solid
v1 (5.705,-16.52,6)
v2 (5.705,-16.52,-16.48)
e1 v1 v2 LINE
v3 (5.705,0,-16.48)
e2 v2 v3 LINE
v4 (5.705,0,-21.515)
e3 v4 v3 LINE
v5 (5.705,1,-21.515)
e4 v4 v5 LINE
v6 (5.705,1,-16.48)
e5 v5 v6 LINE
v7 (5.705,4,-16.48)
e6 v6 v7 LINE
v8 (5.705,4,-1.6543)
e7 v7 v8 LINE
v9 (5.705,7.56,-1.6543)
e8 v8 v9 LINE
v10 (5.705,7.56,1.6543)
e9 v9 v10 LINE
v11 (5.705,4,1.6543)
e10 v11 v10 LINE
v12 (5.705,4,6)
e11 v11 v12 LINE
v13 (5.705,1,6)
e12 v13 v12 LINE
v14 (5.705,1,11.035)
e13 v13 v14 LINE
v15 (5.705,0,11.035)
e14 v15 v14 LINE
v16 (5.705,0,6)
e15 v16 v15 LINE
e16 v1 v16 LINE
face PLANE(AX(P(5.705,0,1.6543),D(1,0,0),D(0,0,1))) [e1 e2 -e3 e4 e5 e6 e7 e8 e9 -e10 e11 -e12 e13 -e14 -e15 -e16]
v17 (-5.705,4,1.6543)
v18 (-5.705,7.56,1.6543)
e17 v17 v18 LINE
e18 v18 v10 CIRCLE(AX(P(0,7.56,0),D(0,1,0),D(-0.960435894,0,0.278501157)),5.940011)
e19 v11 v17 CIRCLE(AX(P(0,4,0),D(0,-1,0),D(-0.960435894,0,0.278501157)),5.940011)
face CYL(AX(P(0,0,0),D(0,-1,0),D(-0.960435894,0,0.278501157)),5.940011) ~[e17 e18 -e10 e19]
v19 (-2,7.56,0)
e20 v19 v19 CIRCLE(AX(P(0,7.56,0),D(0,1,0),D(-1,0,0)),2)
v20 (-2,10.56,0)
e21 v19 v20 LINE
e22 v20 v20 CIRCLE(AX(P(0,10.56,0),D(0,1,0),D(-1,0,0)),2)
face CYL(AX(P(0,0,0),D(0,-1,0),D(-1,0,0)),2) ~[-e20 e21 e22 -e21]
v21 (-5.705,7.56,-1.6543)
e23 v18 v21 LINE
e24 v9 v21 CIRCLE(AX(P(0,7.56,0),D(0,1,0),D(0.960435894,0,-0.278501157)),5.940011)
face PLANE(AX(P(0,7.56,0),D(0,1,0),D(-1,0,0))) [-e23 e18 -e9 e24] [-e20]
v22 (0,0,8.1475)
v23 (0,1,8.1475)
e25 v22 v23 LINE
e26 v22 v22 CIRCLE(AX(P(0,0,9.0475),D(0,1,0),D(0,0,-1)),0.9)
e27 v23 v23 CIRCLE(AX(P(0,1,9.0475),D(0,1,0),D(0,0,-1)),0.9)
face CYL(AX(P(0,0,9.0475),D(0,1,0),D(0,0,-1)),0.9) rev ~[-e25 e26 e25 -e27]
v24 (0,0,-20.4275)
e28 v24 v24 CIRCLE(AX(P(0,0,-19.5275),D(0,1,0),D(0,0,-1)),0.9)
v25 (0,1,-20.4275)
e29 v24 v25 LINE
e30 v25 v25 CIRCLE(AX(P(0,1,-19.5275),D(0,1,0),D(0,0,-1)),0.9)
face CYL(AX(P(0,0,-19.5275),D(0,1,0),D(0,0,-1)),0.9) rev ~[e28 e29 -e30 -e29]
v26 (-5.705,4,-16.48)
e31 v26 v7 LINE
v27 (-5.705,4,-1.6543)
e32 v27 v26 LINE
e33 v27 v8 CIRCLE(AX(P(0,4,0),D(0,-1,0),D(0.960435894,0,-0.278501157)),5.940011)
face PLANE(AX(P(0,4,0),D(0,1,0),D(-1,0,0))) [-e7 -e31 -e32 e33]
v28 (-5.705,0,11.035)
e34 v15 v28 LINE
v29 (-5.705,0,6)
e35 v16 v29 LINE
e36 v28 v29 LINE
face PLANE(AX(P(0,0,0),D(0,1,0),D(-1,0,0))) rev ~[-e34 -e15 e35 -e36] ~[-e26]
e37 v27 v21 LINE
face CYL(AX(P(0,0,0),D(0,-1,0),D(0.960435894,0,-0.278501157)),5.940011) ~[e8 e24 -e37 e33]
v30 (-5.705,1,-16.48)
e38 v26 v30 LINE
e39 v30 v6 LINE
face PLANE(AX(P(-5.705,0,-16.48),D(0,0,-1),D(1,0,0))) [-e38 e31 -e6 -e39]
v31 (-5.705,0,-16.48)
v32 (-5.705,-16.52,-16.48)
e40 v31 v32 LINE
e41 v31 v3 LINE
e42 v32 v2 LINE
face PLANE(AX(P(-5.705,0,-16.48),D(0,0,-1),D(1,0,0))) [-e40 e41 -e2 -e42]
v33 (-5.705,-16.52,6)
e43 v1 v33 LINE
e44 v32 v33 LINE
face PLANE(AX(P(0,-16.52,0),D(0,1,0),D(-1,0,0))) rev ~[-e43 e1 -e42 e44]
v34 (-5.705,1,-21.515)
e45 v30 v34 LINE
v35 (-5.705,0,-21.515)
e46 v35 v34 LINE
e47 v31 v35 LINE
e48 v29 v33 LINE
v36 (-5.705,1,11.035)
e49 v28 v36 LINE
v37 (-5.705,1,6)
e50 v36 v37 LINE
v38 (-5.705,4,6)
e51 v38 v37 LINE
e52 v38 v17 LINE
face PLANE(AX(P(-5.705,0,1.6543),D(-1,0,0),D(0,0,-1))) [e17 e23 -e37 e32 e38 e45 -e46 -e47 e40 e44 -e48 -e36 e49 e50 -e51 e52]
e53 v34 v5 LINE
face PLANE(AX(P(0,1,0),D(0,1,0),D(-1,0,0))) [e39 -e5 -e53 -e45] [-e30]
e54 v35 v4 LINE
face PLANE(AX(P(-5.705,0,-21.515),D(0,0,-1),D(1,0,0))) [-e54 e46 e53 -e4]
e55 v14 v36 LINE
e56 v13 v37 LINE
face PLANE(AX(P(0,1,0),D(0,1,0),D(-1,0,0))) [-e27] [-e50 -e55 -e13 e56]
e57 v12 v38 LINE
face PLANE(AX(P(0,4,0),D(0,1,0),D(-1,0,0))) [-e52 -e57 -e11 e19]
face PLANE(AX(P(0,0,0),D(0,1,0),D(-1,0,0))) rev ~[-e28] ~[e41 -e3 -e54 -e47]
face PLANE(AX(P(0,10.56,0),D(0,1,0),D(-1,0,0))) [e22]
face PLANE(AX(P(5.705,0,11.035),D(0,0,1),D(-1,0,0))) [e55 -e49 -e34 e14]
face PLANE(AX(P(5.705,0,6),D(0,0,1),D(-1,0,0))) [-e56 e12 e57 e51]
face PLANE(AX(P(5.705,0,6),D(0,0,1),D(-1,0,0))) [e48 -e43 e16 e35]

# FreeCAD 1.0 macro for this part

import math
import FreeCAD as App
import Part
import Sketcher
Q = App.Units.Quantity


def add_polygon(sketch, points):
    """Adds a closed chain of lines whose ends are joined by coincident constraints."""
    first, n = sketch.GeometryCount, len(points)
    for a, b in zip(points, points[1:] + points[:1]):
        sketch.addGeometry(Part.LineSegment(App.Vector(*a, 0), App.Vector(*b, 0)), False)
    for i in range(n):
        sketch.addConstraint(Sketcher.Constraint("Coincident", first + i, 2, first + (i + 1) % n, 1))

doc = App.newDocument("Part")
body = doc.addObject("PartDesign::Body", "Body")

# Sketch on XZ plane
sketch1 = body.newObject("Sketcher::SketchObject", "Sketch")
sketch1.AttachmentSupport = (doc.getObject("XZ_Plane"), [""])
sketch1.MapMode = "FlatFace"
add_polygon(sketch1, [(-5.705, 6), (5.705, 6), (5.705, -16.48), (-5.705, -16.48)])  # lines 0-3
sketch1.addConstraint([
    Sketcher.Constraint("Horizontal", 0),
    Sketcher.Constraint("Vertical", 1),
    Sketcher.Constraint("Horizontal", 2),
    Sketcher.Constraint("Vertical", 3),
    Sketcher.Constraint("DistanceY", -1, 1, 0, 2, Q("6 mm")),
    Sketcher.Constraint("DistanceX", 0, 1, 0, 2, Q("11.41 mm")),
    Sketcher.Constraint("DistanceY", 1, 2, 1, 1, Q("22.48 mm")),
    Sketcher.Constraint("DistanceX", -1, 1, 0, 2, Q("5.705 mm")),
])
pad1 = body.newObject("PartDesign::Pad", "Pad")
pad1.Profile = sketch1
pad1.Type = "TwoLengths"
pad1.Length = 4
pad1.Length2 = 16.52
pad1.Reversed = True

# Sketch on XZ plane
sketch2 = body.newObject("Sketcher::SketchObject", "Sketch001")
sketch2.AttachmentSupport = (doc.getObject("XZ_Plane"), [""])
sketch2.MapMode = "FlatFace"
add_polygon(sketch2, [(5.705, 11.035), (5.705, 6), (-5.705, 6), (-5.705, 11.035)])  # lines 0-3
add_polygon(sketch2, [(-5.705, -16.48), (5.705, -16.48), (5.705, -21.515), (-5.705, -21.515)])  # lines 4-7
sketch2.addConstraint([
    Sketcher.Constraint("Vertical", 0),
    Sketcher.Constraint("Horizontal", 1),
    Sketcher.Constraint("Vertical", 2),
    Sketcher.Constraint("Horizontal", 3),
    Sketcher.Constraint("Horizontal", 4),
    Sketcher.Constraint("Vertical", 5),
    Sketcher.Constraint("Horizontal", 6),
    Sketcher.Constraint("Vertical", 7),
    Sketcher.Constraint("Vertical", 3, 2, 4, 2),
    Sketcher.Constraint("Vertical", 2, 2, 6, 2),
    Sketcher.Constraint("Equal", 2, 5),
    Sketcher.Constraint("DistanceY", -1, 1, 0, 2, Q("6 mm")),
    Sketcher.Constraint("DistanceX", 1, 2, 1, 1, Q("11.41 mm")),
    Sketcher.Constraint("DistanceY", 4, 2, 0, 2, Q("22.48 mm")),
    Sketcher.Constraint("DistanceY", 5, 2, 3, 2, Q("32.55 mm")),
    Sketcher.Constraint("DistanceX", -1, 1, 0, 2, Q("5.705 mm")),
])
pad2 = body.newObject("PartDesign::Pad", "Pad001")
pad2.Profile = sketch2
pad2.Length = 1
pad2.Reversed = True

# Sketch on XZ plane
sketch3 = body.newObject("Sketcher::SketchObject", "Sketch002")
sketch3.AttachmentSupport = (doc.getObject("XZ_Plane"), [""])
sketch3.MapMode = "FlatFace"
sketch3.addGeometry([
    Part.ArcOfCircle(Part.Circle(App.Vector(0, 0, 0), App.Vector(0, 0, 1), 5.940011), math.radians(16.170769), math.radians(163.829231)),  # 0
    Part.LineSegment(App.Vector(5.705, 1.6543, 0), App.Vector(5.705, -1.6543, 0)),  # 1
    Part.ArcOfCircle(Part.Circle(App.Vector(0, 0, 0), App.Vector(0, 0, 1), 5.940011), math.radians(-163.829231), math.radians(-16.170769)),  # 2
    Part.LineSegment(App.Vector(-5.705, -1.6543, 0), App.Vector(-5.705, 1.6543, 0)),  # 3
    Part.Circle(App.Vector(0, 0, 0), App.Vector(0, 0, 1), 2),  # 4
], False)
sketch3.addConstraint([
    Sketcher.Constraint("Coincident", 0, 1, 1, 1),
    Sketcher.Constraint("Coincident", 1, 2, 2, 2),
    Sketcher.Constraint("Coincident", 2, 1, 3, 1),
    Sketcher.Constraint("Coincident", 3, 2, 0, 2),
    Sketcher.Constraint("Vertical", 1),
    Sketcher.Constraint("Vertical", 3),
    Sketcher.Constraint("Coincident", 0, 3, -1, 1),
    Sketcher.Constraint("Coincident", 2, 3, -1, 1),
    Sketcher.Constraint("Coincident", 4, 3, -1, 1),
    Sketcher.Constraint("Equal", 0, 2),
    Sketcher.Constraint("Horizontal", 1, 2, 2, 1),
    Sketcher.Constraint("Diameter", 4, Q("4 mm")),
    Sketcher.Constraint("Radius", 0, Q("5.94 mm")),
    Sketcher.Constraint("DistanceX", 2, 1, 1, 2, Q("11.41 mm")),
])
pad3 = body.newObject("PartDesign::Pad", "Pad002")
pad3.Profile = sketch3
pad3.Length = 7.56
pad3.Reversed = True

# Sketch on XZ plane
sketch4 = body.newObject("Sketcher::SketchObject", "Sketch003")
sketch4.AttachmentSupport = (doc.getObject("XZ_Plane"), [""])
sketch4.MapMode = "FlatFace"
sketch4.addGeometry(Part.Circle(App.Vector(0, 0, 0), App.Vector(0, 0, 1), 2), False)
sketch4.addConstraint([
    Sketcher.Constraint("Coincident", 0, 3, -1, 1),
    Sketcher.Constraint("Diameter", 0, Q("4 mm")),
])
pad4 = body.newObject("PartDesign::Pad", "Pad003")
pad4.Profile = sketch4
pad4.Length = 10.56
pad4.Reversed = True

# Sketch on XZ plane
sketch5 = body.newObject("Sketcher::SketchObject", "Sketch004")
sketch5.AttachmentSupport = (doc.getObject("XZ_Plane"), [""])
sketch5.MapMode = "FlatFace"
sketch5.addGeometry([
    Part.Circle(App.Vector(0, 9.0475, 0), App.Vector(0, 0, 1), 0.9),
    Part.Circle(App.Vector(0, -19.5275, 0), App.Vector(0, 0, 1), 0.9),
], False)
sketch5.addConstraint([
    Sketcher.Constraint("Equal", 0, 1),
    Sketcher.Constraint("PointOnObject", 0, 3, -2),
    Sketcher.Constraint("PointOnObject", 1, 3, -2),
    Sketcher.Constraint("Diameter", 0, Q("1.8 mm")),
    Sketcher.Constraint("DistanceY", 1, 3, 0, 3, Q("28.575 mm")),
    Sketcher.Constraint("DistanceY", -1, 1, 0, 3, Q("9.0475 mm")),
])
doc.recompute()
hole = body.newObject("PartDesign::Hole", "Hole")
hole.Profile = sketch5
hole.ThreadType = "None"
hole.Diameter = 1.8
hole.DepthType = "ThroughAll"

doc.recompute()
